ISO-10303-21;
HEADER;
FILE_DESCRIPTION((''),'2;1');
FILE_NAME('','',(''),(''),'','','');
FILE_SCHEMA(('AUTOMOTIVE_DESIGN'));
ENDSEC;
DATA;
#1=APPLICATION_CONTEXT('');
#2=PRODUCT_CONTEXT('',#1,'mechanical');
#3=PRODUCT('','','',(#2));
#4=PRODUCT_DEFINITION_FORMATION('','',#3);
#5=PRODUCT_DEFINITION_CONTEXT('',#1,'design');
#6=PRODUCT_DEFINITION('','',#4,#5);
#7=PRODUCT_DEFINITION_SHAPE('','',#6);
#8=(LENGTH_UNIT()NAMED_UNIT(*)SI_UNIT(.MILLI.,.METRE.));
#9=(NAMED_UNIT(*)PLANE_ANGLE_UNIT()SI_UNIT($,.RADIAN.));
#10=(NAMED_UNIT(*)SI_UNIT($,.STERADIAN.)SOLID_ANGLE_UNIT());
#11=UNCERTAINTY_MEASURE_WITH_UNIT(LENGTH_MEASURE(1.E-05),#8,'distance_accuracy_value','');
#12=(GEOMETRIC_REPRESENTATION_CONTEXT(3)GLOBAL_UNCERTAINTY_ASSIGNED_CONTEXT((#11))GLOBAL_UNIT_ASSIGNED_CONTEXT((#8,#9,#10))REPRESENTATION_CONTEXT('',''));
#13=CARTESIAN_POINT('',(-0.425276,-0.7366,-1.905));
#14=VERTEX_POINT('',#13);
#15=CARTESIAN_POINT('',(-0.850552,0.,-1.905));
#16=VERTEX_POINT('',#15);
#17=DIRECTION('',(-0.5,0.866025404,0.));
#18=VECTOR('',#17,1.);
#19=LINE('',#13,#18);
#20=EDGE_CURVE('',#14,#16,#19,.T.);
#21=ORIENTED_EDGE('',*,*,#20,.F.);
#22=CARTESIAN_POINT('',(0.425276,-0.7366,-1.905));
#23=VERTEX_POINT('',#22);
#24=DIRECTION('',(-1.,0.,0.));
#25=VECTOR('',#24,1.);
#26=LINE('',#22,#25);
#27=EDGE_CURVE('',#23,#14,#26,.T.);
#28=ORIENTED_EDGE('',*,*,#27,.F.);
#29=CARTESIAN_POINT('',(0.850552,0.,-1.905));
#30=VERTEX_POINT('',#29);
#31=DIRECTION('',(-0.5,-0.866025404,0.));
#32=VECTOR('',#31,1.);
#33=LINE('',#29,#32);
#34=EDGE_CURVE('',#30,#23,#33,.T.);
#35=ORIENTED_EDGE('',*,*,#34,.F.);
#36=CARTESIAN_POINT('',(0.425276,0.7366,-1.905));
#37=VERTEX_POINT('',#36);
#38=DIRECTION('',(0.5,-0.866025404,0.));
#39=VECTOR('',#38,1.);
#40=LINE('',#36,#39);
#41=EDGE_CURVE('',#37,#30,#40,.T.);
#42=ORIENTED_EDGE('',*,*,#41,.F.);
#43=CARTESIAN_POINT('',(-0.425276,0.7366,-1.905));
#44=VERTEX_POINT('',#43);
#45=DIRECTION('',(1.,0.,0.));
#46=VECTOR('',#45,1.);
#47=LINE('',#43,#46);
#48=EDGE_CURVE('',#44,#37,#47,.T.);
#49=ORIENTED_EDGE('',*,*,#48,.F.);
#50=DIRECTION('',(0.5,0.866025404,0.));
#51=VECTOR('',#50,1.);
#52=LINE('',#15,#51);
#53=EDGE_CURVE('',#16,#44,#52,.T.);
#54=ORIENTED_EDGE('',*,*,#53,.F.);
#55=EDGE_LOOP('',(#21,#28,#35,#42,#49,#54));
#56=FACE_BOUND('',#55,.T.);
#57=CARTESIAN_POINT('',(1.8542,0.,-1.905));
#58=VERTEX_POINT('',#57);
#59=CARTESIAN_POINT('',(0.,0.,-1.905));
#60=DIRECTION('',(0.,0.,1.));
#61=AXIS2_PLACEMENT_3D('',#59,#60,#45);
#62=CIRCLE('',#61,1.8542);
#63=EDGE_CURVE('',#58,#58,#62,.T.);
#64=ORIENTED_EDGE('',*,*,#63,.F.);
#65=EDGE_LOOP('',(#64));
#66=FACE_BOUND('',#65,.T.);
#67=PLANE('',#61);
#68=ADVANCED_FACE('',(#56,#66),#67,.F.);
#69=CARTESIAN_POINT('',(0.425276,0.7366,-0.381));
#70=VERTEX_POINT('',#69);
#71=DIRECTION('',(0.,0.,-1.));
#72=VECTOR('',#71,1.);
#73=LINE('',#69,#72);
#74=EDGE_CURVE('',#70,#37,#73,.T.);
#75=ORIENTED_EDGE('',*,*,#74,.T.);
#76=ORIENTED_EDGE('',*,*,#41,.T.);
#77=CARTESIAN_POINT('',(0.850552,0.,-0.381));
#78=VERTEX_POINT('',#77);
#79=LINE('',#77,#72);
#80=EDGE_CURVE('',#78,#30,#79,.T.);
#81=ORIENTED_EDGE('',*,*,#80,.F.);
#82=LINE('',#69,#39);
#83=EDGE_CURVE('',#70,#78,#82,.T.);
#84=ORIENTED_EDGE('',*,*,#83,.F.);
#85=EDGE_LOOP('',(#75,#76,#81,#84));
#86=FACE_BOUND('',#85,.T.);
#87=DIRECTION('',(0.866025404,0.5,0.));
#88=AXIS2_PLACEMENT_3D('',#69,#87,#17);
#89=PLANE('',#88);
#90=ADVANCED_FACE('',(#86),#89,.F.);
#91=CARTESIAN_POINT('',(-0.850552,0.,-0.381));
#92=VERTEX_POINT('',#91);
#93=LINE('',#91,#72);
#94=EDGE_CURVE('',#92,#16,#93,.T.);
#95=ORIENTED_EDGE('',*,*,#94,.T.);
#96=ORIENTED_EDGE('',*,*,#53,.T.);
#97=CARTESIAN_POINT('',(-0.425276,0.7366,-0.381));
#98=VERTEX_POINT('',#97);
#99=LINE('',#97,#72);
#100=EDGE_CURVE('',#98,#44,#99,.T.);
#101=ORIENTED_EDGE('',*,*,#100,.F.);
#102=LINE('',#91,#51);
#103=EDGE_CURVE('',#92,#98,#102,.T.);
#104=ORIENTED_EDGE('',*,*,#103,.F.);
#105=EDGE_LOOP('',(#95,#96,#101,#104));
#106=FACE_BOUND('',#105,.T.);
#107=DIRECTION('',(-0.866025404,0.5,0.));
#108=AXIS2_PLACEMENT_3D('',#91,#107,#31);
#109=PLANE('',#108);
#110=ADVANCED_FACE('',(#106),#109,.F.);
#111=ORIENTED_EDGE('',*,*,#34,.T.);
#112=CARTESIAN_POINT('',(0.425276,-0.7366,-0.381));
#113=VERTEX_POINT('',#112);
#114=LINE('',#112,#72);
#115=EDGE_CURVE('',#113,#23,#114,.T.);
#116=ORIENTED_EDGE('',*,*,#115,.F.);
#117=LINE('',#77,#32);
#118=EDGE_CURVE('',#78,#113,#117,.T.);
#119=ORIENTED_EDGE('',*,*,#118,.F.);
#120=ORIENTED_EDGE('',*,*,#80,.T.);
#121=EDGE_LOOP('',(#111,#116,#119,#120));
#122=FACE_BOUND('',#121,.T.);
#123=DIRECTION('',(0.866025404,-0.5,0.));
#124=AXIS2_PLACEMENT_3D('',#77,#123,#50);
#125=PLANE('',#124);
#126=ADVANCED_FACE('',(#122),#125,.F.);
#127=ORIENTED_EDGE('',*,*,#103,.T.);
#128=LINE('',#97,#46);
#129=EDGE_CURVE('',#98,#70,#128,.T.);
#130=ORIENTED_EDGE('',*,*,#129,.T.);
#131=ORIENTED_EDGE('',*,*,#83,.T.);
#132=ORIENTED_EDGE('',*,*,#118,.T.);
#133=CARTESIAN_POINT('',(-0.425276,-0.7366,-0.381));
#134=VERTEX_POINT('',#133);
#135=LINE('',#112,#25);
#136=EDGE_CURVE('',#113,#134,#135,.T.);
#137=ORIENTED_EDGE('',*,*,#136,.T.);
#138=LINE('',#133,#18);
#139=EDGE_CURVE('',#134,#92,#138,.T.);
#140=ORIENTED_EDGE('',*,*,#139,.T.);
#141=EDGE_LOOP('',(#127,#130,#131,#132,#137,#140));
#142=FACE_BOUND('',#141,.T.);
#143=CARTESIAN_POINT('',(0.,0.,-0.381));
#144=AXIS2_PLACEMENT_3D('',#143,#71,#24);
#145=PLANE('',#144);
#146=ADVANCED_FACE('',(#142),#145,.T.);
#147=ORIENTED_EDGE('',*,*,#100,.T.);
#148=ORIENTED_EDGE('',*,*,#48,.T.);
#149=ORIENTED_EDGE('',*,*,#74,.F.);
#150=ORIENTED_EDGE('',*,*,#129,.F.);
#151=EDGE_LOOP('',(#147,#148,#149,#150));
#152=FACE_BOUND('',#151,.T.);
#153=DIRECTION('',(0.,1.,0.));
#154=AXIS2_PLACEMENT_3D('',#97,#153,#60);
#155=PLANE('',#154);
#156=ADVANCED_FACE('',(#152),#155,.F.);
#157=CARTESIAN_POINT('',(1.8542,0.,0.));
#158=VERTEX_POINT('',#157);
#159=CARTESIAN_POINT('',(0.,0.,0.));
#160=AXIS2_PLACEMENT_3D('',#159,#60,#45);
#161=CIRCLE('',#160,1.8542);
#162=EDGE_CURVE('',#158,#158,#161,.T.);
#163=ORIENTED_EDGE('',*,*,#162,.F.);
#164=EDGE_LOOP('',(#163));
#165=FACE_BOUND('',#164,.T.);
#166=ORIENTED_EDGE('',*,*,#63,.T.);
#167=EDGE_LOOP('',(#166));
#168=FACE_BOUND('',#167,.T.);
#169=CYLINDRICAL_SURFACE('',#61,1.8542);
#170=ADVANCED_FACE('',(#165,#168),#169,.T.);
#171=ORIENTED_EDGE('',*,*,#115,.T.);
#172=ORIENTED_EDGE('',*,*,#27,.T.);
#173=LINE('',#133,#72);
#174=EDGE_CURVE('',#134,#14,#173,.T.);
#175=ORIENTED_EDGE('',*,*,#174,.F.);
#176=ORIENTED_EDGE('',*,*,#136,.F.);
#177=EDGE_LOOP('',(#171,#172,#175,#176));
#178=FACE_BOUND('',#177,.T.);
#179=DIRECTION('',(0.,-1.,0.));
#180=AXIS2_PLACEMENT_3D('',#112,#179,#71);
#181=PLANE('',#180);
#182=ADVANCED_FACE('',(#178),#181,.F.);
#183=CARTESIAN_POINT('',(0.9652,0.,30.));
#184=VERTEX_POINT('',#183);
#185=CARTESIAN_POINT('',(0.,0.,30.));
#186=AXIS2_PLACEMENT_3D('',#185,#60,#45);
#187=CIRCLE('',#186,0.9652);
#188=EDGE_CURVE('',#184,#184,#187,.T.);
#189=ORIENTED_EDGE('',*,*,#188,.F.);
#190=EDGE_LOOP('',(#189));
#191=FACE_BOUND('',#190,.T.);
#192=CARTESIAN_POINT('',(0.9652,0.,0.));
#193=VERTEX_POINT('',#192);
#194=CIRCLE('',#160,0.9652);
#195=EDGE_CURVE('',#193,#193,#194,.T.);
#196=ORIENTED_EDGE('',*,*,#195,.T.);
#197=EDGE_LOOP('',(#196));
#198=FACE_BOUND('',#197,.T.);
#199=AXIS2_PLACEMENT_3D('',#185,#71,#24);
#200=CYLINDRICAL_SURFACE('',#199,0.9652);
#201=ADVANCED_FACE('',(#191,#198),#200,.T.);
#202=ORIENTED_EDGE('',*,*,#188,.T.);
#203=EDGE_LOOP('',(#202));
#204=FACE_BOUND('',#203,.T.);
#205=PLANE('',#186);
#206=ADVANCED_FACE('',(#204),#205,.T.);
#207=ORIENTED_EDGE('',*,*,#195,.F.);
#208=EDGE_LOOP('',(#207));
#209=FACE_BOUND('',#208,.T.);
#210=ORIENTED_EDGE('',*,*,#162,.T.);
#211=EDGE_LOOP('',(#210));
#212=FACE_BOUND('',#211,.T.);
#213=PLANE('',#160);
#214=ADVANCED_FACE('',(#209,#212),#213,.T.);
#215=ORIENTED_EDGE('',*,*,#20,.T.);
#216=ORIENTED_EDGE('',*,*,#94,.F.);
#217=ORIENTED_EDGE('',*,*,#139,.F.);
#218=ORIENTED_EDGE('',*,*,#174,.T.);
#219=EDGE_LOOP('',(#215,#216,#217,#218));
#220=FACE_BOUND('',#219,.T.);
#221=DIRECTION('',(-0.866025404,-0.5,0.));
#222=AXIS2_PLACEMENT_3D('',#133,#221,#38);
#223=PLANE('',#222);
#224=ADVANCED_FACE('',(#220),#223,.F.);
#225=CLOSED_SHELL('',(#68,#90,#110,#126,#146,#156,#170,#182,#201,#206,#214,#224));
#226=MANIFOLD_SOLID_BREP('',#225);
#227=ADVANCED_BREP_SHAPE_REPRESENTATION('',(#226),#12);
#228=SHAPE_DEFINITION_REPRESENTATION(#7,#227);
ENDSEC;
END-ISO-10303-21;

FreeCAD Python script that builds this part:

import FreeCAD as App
import Part
import Sketcher

V = App.Vector
Q = App.Units.Quantity

doc = App.newDocument("Part")
params = doc.addObject("Spreadsheet::Sheet", "Params")
for row, (alias, value) in enumerate([
    ("sketch1_diameter", "0.076 in"),
    ("pad1_length", "30 mm"),
    ("sketch2_diameter", "0.146 in"),
    ("pad2_length", "0.075 in"),
    ("pocket1_length", "0.06 in"),
], start=1):
    params.set(f"A{row}", alias)
    params.set(f"B{row}", "=" + value)
    params.setAlias(f"B{row}", alias)

body = doc.addObject("PartDesign::Body", "Body")

sketch1 = body.newObject("Sketcher::SketchObject", "Sketch")
sketch1.AttachmentSupport = (doc.getObject("XY_Plane"), [""])
sketch1.MapMode = "FlatFace"
sketch1.addGeometry(Part.Circle(V(0, 0, 0), V(0, 0, 1), 1), False)
sketch1.addConstraint([
    Sketcher.Constraint("Coincident", 0, 3, -1, 1),
    Sketcher.Constraint("Diameter", 0, Q("0.076 in")),
])
sketch1.setExpression("Constraints[1]", "Params.sketch1_diameter")
pad1 = body.newObject("PartDesign::Pad", "Pad")
pad1.Profile = sketch1
pad1.setExpression("Length", "Params.pad1_length")

sketch2 = body.newObject("Sketcher::SketchObject", "Sketch001")
sketch2.AttachmentSupport = (doc.getObject("XY_Plane"), [""])
sketch2.MapMode = "FlatFace"
sketch2.addGeometry(Part.Circle(V(0, 0, 0), V(0, 0, 1), 1.9), False)
sketch2.addConstraint([
    Sketcher.Constraint("Coincident", 0, 3, -1, 1),
    Sketcher.Constraint("Diameter", 0, Q("0.146 in")),
])
sketch2.setExpression("Constraints[1]", "Params.sketch2_diameter")
pad2 = body.newObject("PartDesign::Pad", "Pad001")
pad2.Profile = sketch2
pad2.setExpression("Length", "Params.pad2_length")
pad2.Reversed = True

sketch3 = body.newObject("Sketcher::SketchObject", "Sketch002")
sketch3.AttachmentSupport = (doc.getObject("XY_Plane"), [""])
sketch3.MapMode = "FlatFace"
sketch3.AttachmentOffset = App.Placement(V(0, 0, -0.075 * 25.4), App.Rotation())
sketch3.addGeometry([
    Part.LineSegment(V(-0.9, 0, 0), V(-0.4, 0.7, 0)),
    Part.LineSegment(V(-0.4, 0.7, 0), V(0.4, 0.7, 0)),
    Part.LineSegment(V(0.4, 0.7, 0), V(0.9, 0, 0)),
    Part.LineSegment(V(0.9, 0, 0), V(0.4, -0.7, 0)),
    Part.LineSegment(V(0.4, -0.7, 0), V(-0.4, -0.7, 0)),
    Part.LineSegment(V(-0.4, -0.7, 0), V(-0.9, 0, 0)),
], False)
sketch3.addConstraint([
    Sketcher.Constraint("Coincident", 0, 2, 1, 1),
    Sketcher.Constraint("Coincident", 1, 2, 2, 1),
    Sketcher.Constraint("Coincident", 2, 2, 3, 1),
    Sketcher.Constraint("Coincident", 3, 2, 4, 1),
    Sketcher.Constraint("Coincident", 4, 2, 5, 1),
    Sketcher.Constraint("Coincident", 5, 2, 0, 1),
    Sketcher.Constraint("Horizontal", 1),
    Sketcher.Constraint("Horizontal", 4),
    Sketcher.Constraint("Symmetric", 0, 2, 3, 2, -1, 1),
    Sketcher.Constraint("Symmetric", 2, 2, 5, 2, -1, 1),
    Sketcher.Constraint("PointOnObject", 2, 2, -1),
    Sketcher.Constraint("Parallel", 2, 5),
    Sketcher.Constraint("Vertical", 1, 2, 3, 2),
    Sketcher.Constraint("Angle", 0, Q("60 deg")),
    Sketcher.Constraint("DistanceY", -1, 1, 0, 2, Q("0.029 in")),
    Sketcher.Constraint("DistanceX", 1, 1, 1, 2, Q("0.850552 mm")),
])
pocket1 = body.newObject("PartDesign::Pocket", "Pocket")
pocket1.Profile = sketch3
pocket1.setExpression("Length", "Params.pocket1_length")
pocket1.Reversed = True

doc.recompute()
